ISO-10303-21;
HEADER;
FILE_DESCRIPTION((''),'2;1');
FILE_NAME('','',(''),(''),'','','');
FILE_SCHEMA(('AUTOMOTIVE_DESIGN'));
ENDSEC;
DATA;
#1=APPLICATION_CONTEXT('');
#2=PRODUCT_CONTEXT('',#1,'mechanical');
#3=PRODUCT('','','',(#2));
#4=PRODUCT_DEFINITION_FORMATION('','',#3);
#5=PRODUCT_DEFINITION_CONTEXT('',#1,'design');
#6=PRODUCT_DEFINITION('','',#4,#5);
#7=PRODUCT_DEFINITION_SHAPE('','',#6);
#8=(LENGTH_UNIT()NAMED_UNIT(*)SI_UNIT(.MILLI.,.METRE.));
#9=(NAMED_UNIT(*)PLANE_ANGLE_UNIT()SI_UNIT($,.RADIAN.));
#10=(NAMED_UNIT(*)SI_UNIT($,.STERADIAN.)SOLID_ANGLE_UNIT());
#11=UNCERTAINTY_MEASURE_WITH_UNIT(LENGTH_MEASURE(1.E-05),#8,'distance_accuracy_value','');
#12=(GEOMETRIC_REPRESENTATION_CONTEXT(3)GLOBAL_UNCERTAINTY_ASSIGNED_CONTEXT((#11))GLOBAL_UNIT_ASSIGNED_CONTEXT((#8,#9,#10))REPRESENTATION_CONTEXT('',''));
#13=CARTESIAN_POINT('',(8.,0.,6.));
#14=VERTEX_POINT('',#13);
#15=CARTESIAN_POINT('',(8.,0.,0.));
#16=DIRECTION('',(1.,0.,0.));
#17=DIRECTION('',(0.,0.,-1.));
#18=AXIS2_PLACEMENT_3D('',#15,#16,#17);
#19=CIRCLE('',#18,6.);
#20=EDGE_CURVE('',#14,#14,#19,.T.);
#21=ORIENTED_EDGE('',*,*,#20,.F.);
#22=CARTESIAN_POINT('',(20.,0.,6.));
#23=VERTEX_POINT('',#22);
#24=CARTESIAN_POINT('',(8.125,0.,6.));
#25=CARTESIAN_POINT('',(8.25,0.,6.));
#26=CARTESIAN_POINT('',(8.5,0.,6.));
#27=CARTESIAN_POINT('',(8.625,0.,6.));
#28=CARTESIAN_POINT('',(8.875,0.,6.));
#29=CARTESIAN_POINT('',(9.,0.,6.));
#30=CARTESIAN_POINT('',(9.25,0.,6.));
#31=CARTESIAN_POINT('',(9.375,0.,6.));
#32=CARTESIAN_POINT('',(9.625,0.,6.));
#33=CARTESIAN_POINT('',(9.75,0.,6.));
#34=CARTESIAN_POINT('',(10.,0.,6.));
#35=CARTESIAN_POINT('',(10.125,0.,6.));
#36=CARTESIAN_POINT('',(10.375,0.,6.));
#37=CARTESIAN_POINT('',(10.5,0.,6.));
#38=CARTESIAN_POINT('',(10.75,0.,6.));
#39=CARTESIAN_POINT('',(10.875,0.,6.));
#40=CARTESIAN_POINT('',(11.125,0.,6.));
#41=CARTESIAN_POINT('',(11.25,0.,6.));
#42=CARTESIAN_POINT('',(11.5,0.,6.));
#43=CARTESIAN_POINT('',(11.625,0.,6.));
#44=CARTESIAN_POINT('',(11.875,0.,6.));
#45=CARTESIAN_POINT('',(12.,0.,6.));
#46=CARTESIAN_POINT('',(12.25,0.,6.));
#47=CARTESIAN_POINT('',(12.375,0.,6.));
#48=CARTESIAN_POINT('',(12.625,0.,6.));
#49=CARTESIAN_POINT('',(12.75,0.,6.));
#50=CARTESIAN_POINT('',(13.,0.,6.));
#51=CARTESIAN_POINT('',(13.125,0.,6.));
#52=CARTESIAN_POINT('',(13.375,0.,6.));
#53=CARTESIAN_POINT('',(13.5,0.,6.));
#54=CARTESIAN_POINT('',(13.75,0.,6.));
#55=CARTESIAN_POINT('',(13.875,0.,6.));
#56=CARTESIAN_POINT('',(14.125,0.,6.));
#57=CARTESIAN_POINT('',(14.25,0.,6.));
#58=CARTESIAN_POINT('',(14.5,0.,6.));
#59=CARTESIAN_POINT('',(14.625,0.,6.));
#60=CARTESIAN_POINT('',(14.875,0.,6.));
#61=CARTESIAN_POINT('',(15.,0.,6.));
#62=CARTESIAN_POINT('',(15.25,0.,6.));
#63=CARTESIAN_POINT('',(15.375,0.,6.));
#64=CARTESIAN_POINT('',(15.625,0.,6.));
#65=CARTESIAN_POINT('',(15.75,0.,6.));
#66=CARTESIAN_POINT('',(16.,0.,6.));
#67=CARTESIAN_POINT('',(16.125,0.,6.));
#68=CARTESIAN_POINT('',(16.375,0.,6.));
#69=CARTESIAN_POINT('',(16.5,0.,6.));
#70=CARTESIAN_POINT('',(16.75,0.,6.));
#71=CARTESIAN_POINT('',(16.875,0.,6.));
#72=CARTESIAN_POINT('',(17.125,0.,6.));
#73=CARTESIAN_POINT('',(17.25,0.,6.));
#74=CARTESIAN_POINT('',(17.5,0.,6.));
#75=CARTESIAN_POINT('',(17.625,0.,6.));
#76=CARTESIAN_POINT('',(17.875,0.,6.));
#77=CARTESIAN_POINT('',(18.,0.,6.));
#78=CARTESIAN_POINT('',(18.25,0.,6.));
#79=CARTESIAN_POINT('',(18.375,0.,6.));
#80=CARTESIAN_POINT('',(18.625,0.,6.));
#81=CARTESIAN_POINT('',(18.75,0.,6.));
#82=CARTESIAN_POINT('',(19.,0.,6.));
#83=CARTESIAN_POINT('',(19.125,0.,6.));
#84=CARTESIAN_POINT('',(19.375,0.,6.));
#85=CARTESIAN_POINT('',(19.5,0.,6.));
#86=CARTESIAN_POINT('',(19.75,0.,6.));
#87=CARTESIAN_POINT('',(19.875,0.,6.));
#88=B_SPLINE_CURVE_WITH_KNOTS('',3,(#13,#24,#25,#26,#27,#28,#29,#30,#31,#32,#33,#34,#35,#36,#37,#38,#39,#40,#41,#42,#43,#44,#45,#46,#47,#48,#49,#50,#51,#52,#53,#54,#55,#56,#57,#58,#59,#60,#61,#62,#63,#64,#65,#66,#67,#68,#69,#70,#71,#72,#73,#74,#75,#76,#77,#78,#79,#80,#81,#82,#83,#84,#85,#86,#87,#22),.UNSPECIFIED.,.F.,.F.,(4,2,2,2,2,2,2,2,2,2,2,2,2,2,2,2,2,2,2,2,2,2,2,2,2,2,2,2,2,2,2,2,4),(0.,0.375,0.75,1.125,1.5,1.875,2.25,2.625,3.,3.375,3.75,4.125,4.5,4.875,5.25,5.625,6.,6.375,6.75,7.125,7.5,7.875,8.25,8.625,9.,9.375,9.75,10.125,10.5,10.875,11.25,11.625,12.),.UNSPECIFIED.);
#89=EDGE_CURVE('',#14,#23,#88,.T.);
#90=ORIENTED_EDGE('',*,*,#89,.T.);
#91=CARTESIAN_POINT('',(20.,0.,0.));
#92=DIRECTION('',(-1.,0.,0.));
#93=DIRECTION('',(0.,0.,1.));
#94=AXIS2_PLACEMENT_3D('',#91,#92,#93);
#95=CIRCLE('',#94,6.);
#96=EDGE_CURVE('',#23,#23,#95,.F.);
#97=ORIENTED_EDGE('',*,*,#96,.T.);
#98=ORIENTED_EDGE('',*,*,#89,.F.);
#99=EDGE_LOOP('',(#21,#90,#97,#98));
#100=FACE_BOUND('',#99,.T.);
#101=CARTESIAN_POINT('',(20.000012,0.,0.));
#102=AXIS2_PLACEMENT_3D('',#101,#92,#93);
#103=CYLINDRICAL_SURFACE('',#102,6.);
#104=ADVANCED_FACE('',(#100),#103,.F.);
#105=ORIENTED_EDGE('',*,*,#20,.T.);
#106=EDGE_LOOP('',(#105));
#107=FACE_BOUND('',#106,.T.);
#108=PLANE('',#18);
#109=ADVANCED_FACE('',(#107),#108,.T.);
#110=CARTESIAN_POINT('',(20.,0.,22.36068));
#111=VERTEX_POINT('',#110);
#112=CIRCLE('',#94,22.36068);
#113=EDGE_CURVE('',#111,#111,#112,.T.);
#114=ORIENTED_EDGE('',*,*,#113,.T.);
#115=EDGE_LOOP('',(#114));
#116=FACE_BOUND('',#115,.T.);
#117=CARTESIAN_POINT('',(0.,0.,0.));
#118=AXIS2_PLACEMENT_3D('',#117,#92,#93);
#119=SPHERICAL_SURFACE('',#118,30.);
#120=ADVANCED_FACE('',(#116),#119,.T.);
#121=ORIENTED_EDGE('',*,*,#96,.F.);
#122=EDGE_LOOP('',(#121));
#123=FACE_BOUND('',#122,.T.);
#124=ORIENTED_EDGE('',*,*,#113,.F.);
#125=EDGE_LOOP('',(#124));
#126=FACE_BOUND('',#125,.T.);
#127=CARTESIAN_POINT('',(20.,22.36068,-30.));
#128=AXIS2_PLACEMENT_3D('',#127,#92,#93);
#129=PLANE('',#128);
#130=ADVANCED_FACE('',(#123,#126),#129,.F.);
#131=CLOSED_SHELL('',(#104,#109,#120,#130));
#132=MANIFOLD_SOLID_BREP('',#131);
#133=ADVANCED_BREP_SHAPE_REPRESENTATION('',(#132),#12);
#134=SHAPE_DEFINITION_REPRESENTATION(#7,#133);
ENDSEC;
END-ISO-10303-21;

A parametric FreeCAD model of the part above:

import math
import FreeCAD as App
import Part
import Sketcher

V = App.Vector
Q = App.Units.Quantity


def add_polygon(sketch, points):
    """Adds a closed chain of lines whose ends are joined by coincident constraints."""
    first, n = sketch.GeometryCount, len(points)
    for a, b in zip(points, points[1:] + points[:1]):
        sketch.addGeometry(Part.LineSegment(App.Vector(*a, 0), App.Vector(*b, 0)), False)
    for i in range(n):
        sketch.addConstraint(Sketcher.Constraint("Coincident", first + i, 2, first + (i + 1) % n, 1))

doc = App.newDocument("Part")
body = doc.addObject("PartDesign::Body", "Body")

# Sketch on XY plane
sketch1 = doc.addObject("Sketcher::SketchObject", "Sketch")
body.addObject(sketch1)
sketch1.AttachmentSupport = (doc.XY_Plane, [""])
sketch1.MapMode = "FlatFace"
sketch1.addGeometry(Part.LineSegment(V(0, 30, 0), V(0, -30, 0)), False)
sketch1.addGeometry(Part.ArcOfCircle(Part.Circle(V(0, 0, 0), V(0, 0, 1), 30), math.radians(-90), math.radians(90)), False)
sketch1.addConstraint(Sketcher.Constraint("Coincident", 0, 1, 1, 2))
sketch1.addConstraint(Sketcher.Constraint("Coincident", 1, 1, 0, 2))
sketch1.addConstraint(Sketcher.Constraint("Vertical", 0))
sketch1.addConstraint(Sketcher.Constraint("Coincident", 1, 3, -1, 1))
sketch1.addConstraint(Sketcher.Constraint("PointOnObject", 0, 1, -2))
sketch1.addConstraint(Sketcher.Constraint("Radius", 1, Q("30 mm")))
revolution = doc.addObject("PartDesign::Revolution", "Revolution")
body.addObject(revolution)
revolution.Profile = sketch1
revolution.ReferenceAxis = (sketch1, ["V_Axis"])
revolution.Angle = 360

# Sketch on XY plane
sketch2 = doc.addObject("Sketcher::SketchObject", "Sketch001")
body.addObject(sketch2)
sketch2.AttachmentSupport = (doc.XY_Plane, [""])
sketch2.MapMode = "FlatFace"
add_polygon(sketch2, [(20, 22), (20, -22), (50, -22), (50, 22)])  # lines 0-3
sketch2.addConstraint(Sketcher.Constraint("Vertical", 0))
sketch2.addConstraint(Sketcher.Constraint("Horizontal", 1))
sketch2.addConstraint(Sketcher.Constraint("Vertical", 2))
sketch2.addConstraint(Sketcher.Constraint("Horizontal", 3))
sketch2.addConstraint(Sketcher.Constraint("DistanceX", 1, 1, 1, 2, Q("30 mm")))
sketch2.addConstraint(Sketcher.Constraint("DistanceX", -1, 1, 0, 2, Q("20 mm")))
sketch2.addConstraint(Sketcher.Constraint("DistanceY", 0, 2, 0, 1, Q("44.72136 mm")))
sketch2.addConstraint(Sketcher.Constraint("DistanceY", 0, 2, -1, 1, Q("22.36068 mm")))
pocket1 = doc.addObject("PartDesign::Pocket", "Pocket")
body.addObject(pocket1)
pocket1.Profile = sketch2
pocket1.Type = "ThroughAll"
pocket1.Midplane = True

# Sketch on YZ plane
sketch3 = doc.addObject("Sketcher::SketchObject", "Sketch002")
body.addObject(sketch3)
sketch3.AttachmentSupport = (doc.YZ_Plane, [""])
sketch3.MapMode = "FlatFace"
sketch3.AttachmentOffset = App.Placement(V(0, 0, 20), App.Rotation())
sketch3.addGeometry(Part.Circle(V(0, 0, 0), V(0, 0, 1), 6), False)
sketch3.addConstraint(Sketcher.Constraint("Coincident", 0, 3, -1, 1))
sketch3.addConstraint(Sketcher.Constraint("Diameter", 0, Q("12 mm")))
pocket2 = doc.addObject("PartDesign::Pocket", "Pocket001")
body.addObject(pocket2)
pocket2.Profile = sketch3
pocket2.Type = "TwoLengths"
pocket2.Length = 66.574385
pocket2.Length2 = 12
pocket2.Reversed = True

doc.recompute()
